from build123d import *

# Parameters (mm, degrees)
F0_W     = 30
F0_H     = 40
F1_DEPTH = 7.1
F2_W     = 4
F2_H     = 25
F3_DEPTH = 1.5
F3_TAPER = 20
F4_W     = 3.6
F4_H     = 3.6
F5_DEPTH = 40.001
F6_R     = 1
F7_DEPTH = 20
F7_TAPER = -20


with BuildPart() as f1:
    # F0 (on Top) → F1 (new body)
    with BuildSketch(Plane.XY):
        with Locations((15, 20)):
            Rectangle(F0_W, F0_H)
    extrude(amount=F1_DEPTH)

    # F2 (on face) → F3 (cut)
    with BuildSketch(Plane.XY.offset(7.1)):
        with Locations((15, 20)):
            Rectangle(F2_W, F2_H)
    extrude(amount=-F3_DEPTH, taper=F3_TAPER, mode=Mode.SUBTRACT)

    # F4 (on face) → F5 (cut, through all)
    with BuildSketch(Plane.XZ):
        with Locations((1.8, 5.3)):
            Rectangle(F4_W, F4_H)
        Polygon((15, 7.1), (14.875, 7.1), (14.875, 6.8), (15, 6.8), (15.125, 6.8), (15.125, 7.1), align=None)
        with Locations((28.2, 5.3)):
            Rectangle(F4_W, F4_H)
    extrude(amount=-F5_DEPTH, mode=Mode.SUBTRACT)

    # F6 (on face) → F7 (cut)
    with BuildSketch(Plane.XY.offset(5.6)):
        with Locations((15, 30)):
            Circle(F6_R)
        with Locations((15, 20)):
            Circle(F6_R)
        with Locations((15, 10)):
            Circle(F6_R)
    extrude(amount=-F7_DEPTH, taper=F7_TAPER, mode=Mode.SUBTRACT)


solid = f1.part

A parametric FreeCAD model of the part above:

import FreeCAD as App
import Part
import Sketcher
Q = App.Units.Quantity

doc = App.newDocument("Part")
params = doc.addObject("Spreadsheet::Sheet", "Params")
for row, (alias, value) in enumerate([
    ("sketch1_width", "30 mm"),
    ("sketch1_height", "40 mm"),
    ("pad1_length", "7.1 mm"),
    ("sketch2_width", "4 mm"),
    ("sketch2_height", "25 mm"),
    ("pocket1_length", "1.5 mm"),
    ("pocket1_taper", "-20 deg"),
    ("sketch3_width", "3.6 mm"),
    ("sketch3_height", "0.3 mm"),
    ("sketch3_width2", "0.25 mm"),
    ("sketch4_diameter", "2 mm"),
    ("pocket3_length", "20 mm"),
    ("pocket3_taper", "20 deg"),
], start=1):
    params.set(f"A{row}", alias)
    params.set(f"B{row}", "=" + value)
    params.setAlias(f"B{row}", alias)

body = doc.addObject("PartDesign::Body", "Body")

# Sketch on XY plane
sketch1 = body.newObject("Sketcher::SketchObject", "Sketch")
sketch1.AttachmentSupport = (doc.getObject("XY_Plane"), [""])
sketch1.MapMode = "FlatFace"
sketch1.addGeometry([
    Part.LineSegment(App.Vector(0, 40, 0), App.Vector(0, 0, 0)),
    Part.LineSegment(App.Vector(0, 0, 0), App.Vector(30, 0, 0)),
    Part.LineSegment(App.Vector(30, 0, 0), App.Vector(30, 40, 0)),
    Part.LineSegment(App.Vector(30, 40, 0), App.Vector(0, 40, 0)),
], False)
sketch1.addConstraint([
    Sketcher.Constraint("Coincident", 0, 2, 1, 1),
    Sketcher.Constraint("Coincident", 1, 2, 2, 1),
    Sketcher.Constraint("Coincident", 2, 2, 3, 1),
    Sketcher.Constraint("Coincident", 3, 2, 0, 1),
    Sketcher.Constraint("Vertical", 0),
    Sketcher.Constraint("Horizontal", 1),
    Sketcher.Constraint("Vertical", 2),
    Sketcher.Constraint("Horizontal", 3),
    Sketcher.Constraint("Coincident", 0, 2, -1, 1),
    Sketcher.Constraint("DistanceX", 1, 1, 1, 2, Q("30 mm")),
    Sketcher.Constraint("DistanceY", 0, 2, 0, 1, Q("40 mm")),
])
sketch1.setExpression("Constraints[9]", "Params.sketch1_width")
sketch1.setExpression("Constraints[10]", "Params.sketch1_height")
pad1 = body.newObject("PartDesign::Pad", "Pad")
pad1.Profile = sketch1
pad1.setExpression("Length", "Params.pad1_length")

# Sketch on XY plane
sketch2 = body.newObject("Sketcher::SketchObject", "Sketch001")
sketch2.AttachmentSupport = (doc.getObject("XY_Plane"), [""])
sketch2.MapMode = "FlatFace"
sketch2.AttachmentOffset = App.Placement(App.Vector(0, 0, 7.1), App.Rotation())
sketch2.addGeometry([
    Part.LineSegment(App.Vector(13, 32.5, 0), App.Vector(13, 7.5, 0)),
    Part.LineSegment(App.Vector(13, 7.5, 0), App.Vector(17, 7.5, 0)),
    Part.LineSegment(App.Vector(17, 7.5, 0), App.Vector(17, 32.5, 0)),
    Part.LineSegment(App.Vector(17, 32.5, 0), App.Vector(13, 32.5, 0)),
], False)
sketch2.addConstraint([
    Sketcher.Constraint("Coincident", 0, 2, 1, 1),
    Sketcher.Constraint("Coincident", 1, 2, 2, 1),
    Sketcher.Constraint("Coincident", 2, 2, 3, 1),
    Sketcher.Constraint("Coincident", 3, 2, 0, 1),
    Sketcher.Constraint("Vertical", 0),
    Sketcher.Constraint("Horizontal", 1),
    Sketcher.Constraint("Vertical", 2),
    Sketcher.Constraint("Horizontal", 3),
    Sketcher.Constraint("DistanceX", 1, 1, 1, 2, Q("4 mm")),
    Sketcher.Constraint("DistanceY", 0, 2, 0, 1, Q("25 mm")),
    Sketcher.Constraint("DistanceX", -1, 1, 0, 2, Q("13 mm")),
    Sketcher.Constraint("DistanceY", -1, 1, 0, 2, Q("7.5 mm")),
])
sketch2.setExpression("Constraints[8]", "Params.sketch2_width")
sketch2.setExpression("Constraints[9]", "Params.sketch2_height")
pocket1 = body.newObject("PartDesign::Pocket", "Pocket")
pocket1.Profile = sketch2
pocket1.setExpression("Length", "Params.pocket1_length")
pocket1.setExpression("TaperAngle", "Params.pocket1_taper")

# Sketch on XZ plane
sketch3 = body.newObject("Sketcher::SketchObject", "Sketch002")
sketch3.AttachmentSupport = (doc.getObject("XZ_Plane"), [""])
sketch3.MapMode = "FlatFace"
sketch3.addGeometry([
    Part.LineSegment(App.Vector(0, 7.1, 0), App.Vector(0, 3.5, 0)),  # 0
    Part.LineSegment(App.Vector(0, 3.5, 0), App.Vector(3.6, 3.5, 0)),  # 1
    Part.LineSegment(App.Vector(3.6, 3.5, 0), App.Vector(3.6, 7.1, 0)),  # 2
    Part.LineSegment(App.Vector(3.6, 7.1, 0), App.Vector(0, 7.1, 0)),  # 3
    Part.LineSegment(App.Vector(14.875, 7.1, 0), App.Vector(14.875, 6.8, 0)),  # 4
    Part.LineSegment(App.Vector(14.875, 6.8, 0), App.Vector(15.125, 6.8, 0)),  # 5
    Part.LineSegment(App.Vector(15.125, 6.8, 0), App.Vector(15.125, 7.1, 0)),  # 6
    Part.LineSegment(App.Vector(15.125, 7.1, 0), App.Vector(14.875, 7.1, 0)),  # 7
    Part.LineSegment(App.Vector(26.4, 7.1, 0), App.Vector(26.4, 3.5, 0)),  # 8
    Part.LineSegment(App.Vector(26.4, 3.5, 0), App.Vector(30, 3.5, 0)),  # 9
    Part.LineSegment(App.Vector(30, 3.5, 0), App.Vector(30, 7.1, 0)),  # 10
    Part.LineSegment(App.Vector(30, 7.1, 0), App.Vector(26.4, 7.1, 0)),  # 11
], False)
sketch3.addConstraint([
    Sketcher.Constraint("Coincident", 0, 2, 1, 1),
    Sketcher.Constraint("Coincident", 1, 2, 2, 1),
    Sketcher.Constraint("Coincident", 2, 2, 3, 1),
    Sketcher.Constraint("Coincident", 3, 2, 0, 1),
    Sketcher.Constraint("Coincident", 4, 2, 5, 1),
    Sketcher.Constraint("Coincident", 5, 2, 6, 1),
    Sketcher.Constraint("Coincident", 6, 2, 7, 1),
    Sketcher.Constraint("Coincident", 7, 2, 4, 1),
    Sketcher.Constraint("Coincident", 8, 2, 9, 1),
    Sketcher.Constraint("Coincident", 9, 2, 10, 1),
    Sketcher.Constraint("Coincident", 10, 2, 11, 1),
    Sketcher.Constraint("Coincident", 11, 2, 8, 1),
    Sketcher.Constraint("Vertical", 0),
    Sketcher.Constraint("Horizontal", 1),
    Sketcher.Constraint("Vertical", 2),
    Sketcher.Constraint("Horizontal", 3),
    Sketcher.Constraint("Vertical", 4),
    Sketcher.Constraint("Horizontal", 5),
    Sketcher.Constraint("Vertical", 6),
    Sketcher.Constraint("Horizontal", 7),
    Sketcher.Constraint("Vertical", 8),
    Sketcher.Constraint("Horizontal", 9),
    Sketcher.Constraint("Vertical", 10),
    Sketcher.Constraint("Horizontal", 11),
    Sketcher.Constraint("PointOnObject", 0, 2, -2),
    Sketcher.Constraint("Horizontal", 3, 2, 6, 2),
    Sketcher.Constraint("Horizontal", 1, 2, 8, 2),
    Sketcher.Constraint("Horizontal", 7, 2, 10, 2),
    Sketcher.Constraint("Equal", 3, 9),
    Sketcher.Constraint("Equal", 11, 0),
    Sketcher.Constraint("DistanceX", 1, 1, 1, 2, Q("3.6 mm")),
    Sketcher.Constraint("DistanceY", 4, 2, 4, 1, Q("0.3 mm")),
    Sketcher.Constraint("DistanceX", -1, 1, 9, 2, Q("30 mm")),
    Sketcher.Constraint("DistanceX", 5, 1, 5, 2, Q("0.25 mm")),
    Sketcher.Constraint("DistanceY", -1, 1, 0, 2, Q("3.5 mm")),
    Sketcher.Constraint("DistanceX", -1, 1, 4, 2, Q("14.875 mm")),
])
sketch3.setExpression("Constraints[30]", "Params.sketch3_width")
sketch3.setExpression("Constraints[31]", "Params.sketch3_height")
sketch3.setExpression("Constraints[33]", "Params.sketch3_width2")
pocket2 = body.newObject("PartDesign::Pocket", "Pocket001")
pocket2.Profile = sketch3
pocket2.Type = "ThroughAll"

# Sketch on XY plane
sketch4 = body.newObject("Sketcher::SketchObject", "Sketch003")
sketch4.AttachmentSupport = (doc.getObject("XY_Plane"), [""])
sketch4.MapMode = "FlatFace"
sketch4.AttachmentOffset = App.Placement(App.Vector(0, 0, 5.6), App.Rotation())
sketch4.addGeometry([
    Part.Circle(App.Vector(15, 30, 0), App.Vector(0, 0, 1), 1),
    Part.Circle(App.Vector(15, 20, 0), App.Vector(0, 0, 1), 1),
    Part.Circle(App.Vector(15, 10, 0), App.Vector(0, 0, 1), 1),
], False)
sketch4.addConstraint([
    Sketcher.Constraint("Equal", 0, 1),
    Sketcher.Constraint("Equal", 1, 2),
    Sketcher.Constraint("Vertical", 0, 3, 1, 3),
    Sketcher.Constraint("Vertical", 1, 3, 2, 3),
    Sketcher.Constraint("Diameter", 0, Q("2 mm")),
    Sketcher.Constraint("DistanceX", -1, 1, 0, 3, Q("15 mm")),
    Sketcher.Constraint("DistanceY", -1, 1, 0, 3, Q("30 mm")),
    Sketcher.Constraint("DistanceY", -1, 1, 1, 3, Q("20 mm")),
    Sketcher.Constraint("DistanceY", -1, 1, 2, 3, Q("10 mm")),
])
sketch4.setExpression("Constraints[4]", "Params.sketch4_diameter")
pocket3 = body.newObject("PartDesign::Pocket", "Pocket002")
pocket3.Profile = sketch4
pocket3.setExpression("Length", "Params.pocket3_length")
pocket3.setExpression("TaperAngle", "Params.pocket3_taper")

doc.recompute()
